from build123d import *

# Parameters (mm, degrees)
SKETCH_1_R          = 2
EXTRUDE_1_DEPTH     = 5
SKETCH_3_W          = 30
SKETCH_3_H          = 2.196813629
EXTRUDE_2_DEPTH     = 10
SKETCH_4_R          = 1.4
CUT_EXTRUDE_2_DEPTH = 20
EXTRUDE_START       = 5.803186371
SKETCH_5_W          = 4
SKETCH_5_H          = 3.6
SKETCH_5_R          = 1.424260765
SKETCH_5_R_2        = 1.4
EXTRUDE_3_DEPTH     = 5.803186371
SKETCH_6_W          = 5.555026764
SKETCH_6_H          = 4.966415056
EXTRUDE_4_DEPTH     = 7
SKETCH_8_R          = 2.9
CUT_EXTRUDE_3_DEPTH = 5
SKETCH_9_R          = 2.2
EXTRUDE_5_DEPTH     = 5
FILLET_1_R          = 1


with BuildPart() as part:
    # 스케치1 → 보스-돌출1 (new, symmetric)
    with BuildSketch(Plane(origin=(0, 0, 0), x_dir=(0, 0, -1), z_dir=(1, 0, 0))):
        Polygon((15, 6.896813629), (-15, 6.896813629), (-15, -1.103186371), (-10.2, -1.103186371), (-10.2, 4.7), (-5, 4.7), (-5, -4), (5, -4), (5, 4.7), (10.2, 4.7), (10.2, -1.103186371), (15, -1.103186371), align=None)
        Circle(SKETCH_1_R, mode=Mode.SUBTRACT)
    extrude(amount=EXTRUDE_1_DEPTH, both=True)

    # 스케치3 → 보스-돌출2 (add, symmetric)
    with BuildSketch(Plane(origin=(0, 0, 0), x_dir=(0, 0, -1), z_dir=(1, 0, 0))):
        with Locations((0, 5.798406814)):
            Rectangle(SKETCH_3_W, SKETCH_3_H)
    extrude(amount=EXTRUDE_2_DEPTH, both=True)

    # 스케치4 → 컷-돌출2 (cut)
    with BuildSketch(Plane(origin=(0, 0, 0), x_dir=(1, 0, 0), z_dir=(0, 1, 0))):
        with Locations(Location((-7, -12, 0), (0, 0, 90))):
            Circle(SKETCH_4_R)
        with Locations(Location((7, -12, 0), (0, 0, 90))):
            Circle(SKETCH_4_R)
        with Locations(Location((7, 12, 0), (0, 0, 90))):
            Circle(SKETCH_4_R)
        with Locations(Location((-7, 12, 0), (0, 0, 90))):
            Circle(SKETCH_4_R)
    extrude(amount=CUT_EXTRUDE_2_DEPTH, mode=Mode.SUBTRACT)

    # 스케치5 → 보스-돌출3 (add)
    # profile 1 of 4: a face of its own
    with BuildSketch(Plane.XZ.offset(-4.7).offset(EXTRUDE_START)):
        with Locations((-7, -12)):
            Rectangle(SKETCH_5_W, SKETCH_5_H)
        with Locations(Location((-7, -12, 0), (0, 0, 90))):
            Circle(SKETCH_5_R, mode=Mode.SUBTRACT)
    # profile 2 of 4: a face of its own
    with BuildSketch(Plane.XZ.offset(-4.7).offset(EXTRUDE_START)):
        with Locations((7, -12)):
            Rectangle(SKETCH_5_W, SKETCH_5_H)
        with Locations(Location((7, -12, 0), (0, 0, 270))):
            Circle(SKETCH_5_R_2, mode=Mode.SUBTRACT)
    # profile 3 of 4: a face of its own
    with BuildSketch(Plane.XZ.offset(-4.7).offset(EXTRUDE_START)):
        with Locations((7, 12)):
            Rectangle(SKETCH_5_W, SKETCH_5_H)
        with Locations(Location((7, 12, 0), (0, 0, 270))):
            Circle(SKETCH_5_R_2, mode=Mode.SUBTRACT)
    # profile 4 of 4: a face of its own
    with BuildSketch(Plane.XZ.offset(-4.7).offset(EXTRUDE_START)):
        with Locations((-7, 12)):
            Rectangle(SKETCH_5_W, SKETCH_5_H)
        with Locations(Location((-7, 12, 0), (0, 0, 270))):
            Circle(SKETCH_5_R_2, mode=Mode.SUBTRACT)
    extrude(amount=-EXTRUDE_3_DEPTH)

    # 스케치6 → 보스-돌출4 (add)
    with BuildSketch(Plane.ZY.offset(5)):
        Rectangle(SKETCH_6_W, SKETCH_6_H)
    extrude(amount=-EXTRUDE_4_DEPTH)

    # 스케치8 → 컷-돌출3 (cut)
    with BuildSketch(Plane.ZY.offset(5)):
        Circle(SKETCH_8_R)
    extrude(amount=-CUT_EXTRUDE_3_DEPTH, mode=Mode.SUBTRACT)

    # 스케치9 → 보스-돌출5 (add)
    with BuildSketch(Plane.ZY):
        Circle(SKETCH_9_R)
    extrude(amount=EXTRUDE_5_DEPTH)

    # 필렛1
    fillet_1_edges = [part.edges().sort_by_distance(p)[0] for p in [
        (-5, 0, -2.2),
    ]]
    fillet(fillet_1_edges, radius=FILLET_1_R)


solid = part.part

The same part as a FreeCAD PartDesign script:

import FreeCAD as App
import Part
import Sketcher


def edges_at(feature, points):
    """Names of the edges that pass closest to the given points."""
    edges = feature.Shape.Edges
    near = lambda p: min(range(len(edges)), key=lambda i: edges[i].distToShape(Part.Vertex(*p))[0])
    return sorted({f"Edge{near(p) + 1}" for p in points})


def add_polygon(sketch, points):
    """Adds a closed chain of lines whose ends are joined by coincident constraints."""
    first, n = sketch.GeometryCount, len(points)
    for a, b in zip(points, points[1:] + points[:1]):
        sketch.addGeometry(Part.LineSegment(App.Vector(*a, 0), App.Vector(*b, 0)), False)
    for i in range(n):
        sketch.addConstraint(Sketcher.Constraint("Coincident", first + i, 2, first + (i + 1) % n, 1))

doc = App.newDocument("Part")
body = doc.addObject("PartDesign::Body", "Body")

# Sketch on YZ plane
sketch1 = doc.addObject("Sketcher::SketchObject", "Sketch")
body.addObject(sketch1)
sketch1.AttachmentSupport = (doc.YZ_Plane, [""])
sketch1.MapMode = "FlatFace"
add_polygon(sketch1, [(6.9, -15), (6.9, 15), (-1.1, 15), (-1.1, 10.2), (4.7, 10.2), (4.7, 5), (-4, 5), (-4, -5), (4.7, -5), (4.7, -10.2), (-1.1, -10.2), (-1.1, -15)])  # lines 0-11
sketch1.addGeometry(Part.Circle(App.Vector(0, 0, 0), App.Vector(0, 0, 1), 2), False)  # 12
sketch1.addConstraint(Sketcher.Constraint("Vertical", 0))
sketch1.addConstraint(Sketcher.Constraint("Horizontal", 1))
sketch1.addConstraint(Sketcher.Constraint("Vertical", 2))
sketch1.addConstraint(Sketcher.Constraint("Horizontal", 3))
sketch1.addConstraint(Sketcher.Constraint("Vertical", 4))
sketch1.addConstraint(Sketcher.Constraint("Horizontal", 5))
sketch1.addConstraint(Sketcher.Constraint("Vertical", 6))
sketch1.addConstraint(Sketcher.Constraint("Horizontal", 7))
sketch1.addConstraint(Sketcher.Constraint("Vertical", 8))
sketch1.addConstraint(Sketcher.Constraint("Horizontal", 9))
sketch1.addConstraint(Sketcher.Constraint("Vertical", 10))
sketch1.addConstraint(Sketcher.Constraint("Horizontal", 11))
sketch1.addConstraint(Sketcher.Constraint("Coincident", 12, 3, -1, 1))
sketch1.addConstraint(Sketcher.Constraint("Symmetric", 4, 2, 7, 2, -1))
sketch1.addConstraint(Sketcher.Constraint("Symmetric", 2, 2, 9, 2, -1))
sketch1.addConstraint(Sketcher.Constraint("Equal", 2, 10))
sketch1.addConstraint(Sketcher.Constraint("Diameter", 12, 4.0))
sketch1.addConstraint(Sketcher.Constraint("DistanceX", 1, 2, 1, 1, 8.0))
sketch1.addConstraint(Sketcher.Constraint("DistanceY", 0, 1, 0, 2, 30.0))
sketch1.addConstraint(Sketcher.Constraint("DistanceY", 6, 2, 6, 1, 10.0))
sketch1.addConstraint(Sketcher.Constraint("DistanceX", 5, 2, 5, 1, 8.7))
sketch1.addConstraint(Sketcher.Constraint("DistanceY", 2, 2, 2, 1, 4.8))
sketch1.addConstraint(Sketcher.Constraint("DistanceX", 5, 2, -1, 1, 4.0))
sketch1.addConstraint(Sketcher.Constraint("DistanceX", 3, 1, 3, 2, 5.803186))
pad1 = doc.addObject("PartDesign::Pad", "Pad")
body.addObject(pad1)
pad1.Profile = sketch1
pad1.Length = 10
pad1.Midplane = True

# Sketch on YZ plane
sketch2 = doc.addObject("Sketcher::SketchObject", "Sketch001")
body.addObject(sketch2)
sketch2.AttachmentSupport = (doc.YZ_Plane, [""])
sketch2.MapMode = "FlatFace"
add_polygon(sketch2, [(6.9, 15), (4.7, 15), (4.7, -15), (6.9, -15)])  # lines 0-3
sketch2.addConstraint(Sketcher.Constraint("Horizontal", 0))
sketch2.addConstraint(Sketcher.Constraint("Vertical", 1))
sketch2.addConstraint(Sketcher.Constraint("Horizontal", 2))
sketch2.addConstraint(Sketcher.Constraint("Vertical", 3))
sketch2.addConstraint(Sketcher.Constraint("DistanceY", 1, 2, 1, 1, 30.0))
sketch2.addConstraint(Sketcher.Constraint("DistanceY", -1, 1, 0, 2, 15.0))
sketch2.addConstraint(Sketcher.Constraint("DistanceX", -1, 1, 0, 2, 4.7))
sketch2.addConstraint(Sketcher.Constraint("DistanceX", 0, 2, 0, 1, 2.196814))
pad2 = doc.addObject("PartDesign::Pad", "Pad001")
body.addObject(pad2)
pad2.Profile = sketch2
pad2.Length = 20
pad2.Midplane = True

# Sketch on XZ plane
sketch3 = doc.addObject("Sketcher::SketchObject", "Sketch002")
body.addObject(sketch3)
sketch3.AttachmentSupport = (doc.XZ_Plane, [""])
sketch3.MapMode = "FlatFace"
sketch3.addGeometry(Part.Circle(App.Vector(-7, 12, 0), App.Vector(0, 0, 1), 1.4), False)
sketch3.addGeometry(Part.Circle(App.Vector(7, 12, 0), App.Vector(0, 0, 1), 1.4), False)
sketch3.addGeometry(Part.Circle(App.Vector(7, -12, 0), App.Vector(0, 0, 1), 1.4), False)
sketch3.addGeometry(Part.Circle(App.Vector(-7, -12, 0), App.Vector(0, 0, 1), 1.4), False)
sketch3.addConstraint(Sketcher.Constraint("Equal", 0, 1))
sketch3.addConstraint(Sketcher.Constraint("Equal", 1, 2))
sketch3.addConstraint(Sketcher.Constraint("Equal", 2, 3))
sketch3.addConstraint(Sketcher.Constraint("Symmetric", 0, 3, 2, 3, -1, 1))
sketch3.addConstraint(Sketcher.Constraint("Symmetric", 1, 3, 3, 3, -1, 1))
sketch3.addConstraint(Sketcher.Constraint("Symmetric", 0, 3, 1, 3, -2))
sketch3.addConstraint(Sketcher.Constraint("Diameter", 0, 2.8))
sketch3.addConstraint(Sketcher.Constraint("DistanceX", 0, 3, -1, 1, 7.0))
sketch3.addConstraint(Sketcher.Constraint("DistanceY", -1, 1, 0, 3, 12.0))
pocket1 = doc.addObject("PartDesign::Pocket", "Pocket")
body.addObject(pocket1)
pocket1.Profile = sketch3
pocket1.Length = 20

# Sketch on XZ plane
sketch4 = doc.addObject("Sketcher::SketchObject", "Sketch003")
body.addObject(sketch4)
sketch4.AttachmentSupport = (doc.XZ_Plane, [""])
sketch4.MapMode = "FlatFace"
sketch4.AttachmentOffset = App.Placement(App.Vector(0, 0, 1.103186), App.Rotation())
add_polygon(sketch4, [(-9, -10.2), (-9, -13.8), (-5, -13.8), (-5, -10.2)])  # lines 0-3
sketch4.addGeometry(Part.Circle(App.Vector(-7, -12, 0), App.Vector(0, 0, 1), 1.4), False)  # 4
add_polygon(sketch4, [(5, -10.2), (5, -13.8), (9, -13.8), (9, -10.2)])  # lines 5-8
sketch4.addGeometry(Part.Circle(App.Vector(7, -12, 0), App.Vector(0, 0, 1), 1.4), False)  # 9
add_polygon(sketch4, [(5, 13.8), (5, 10.2), (9, 10.2), (9, 13.8)])  # lines 10-13
sketch4.addGeometry(Part.Circle(App.Vector(7, 12, 0), App.Vector(0, 0, 1), 1.4), False)  # 14
add_polygon(sketch4, [(-9, 13.8), (-9, 10.2), (-5, 10.2), (-5, 13.8)])  # lines 15-18
sketch4.addGeometry(Part.Circle(App.Vector(-7, 12, 0), App.Vector(0, 0, 1), 1.4), False)  # 19
sketch4.addConstraint(Sketcher.Constraint("Vertical", 0))
sketch4.addConstraint(Sketcher.Constraint("Horizontal", 1))
sketch4.addConstraint(Sketcher.Constraint("Vertical", 2))
sketch4.addConstraint(Sketcher.Constraint("Horizontal", 3))
sketch4.addConstraint(Sketcher.Constraint("Vertical", 5))
sketch4.addConstraint(Sketcher.Constraint("Horizontal", 6))
sketch4.addConstraint(Sketcher.Constraint("Vertical", 7))
sketch4.addConstraint(Sketcher.Constraint("Horizontal", 8))
sketch4.addConstraint(Sketcher.Constraint("Vertical", 10))
sketch4.addConstraint(Sketcher.Constraint("Horizontal", 11))
sketch4.addConstraint(Sketcher.Constraint("Vertical", 12))
sketch4.addConstraint(Sketcher.Constraint("Horizontal", 13))
sketch4.addConstraint(Sketcher.Constraint("Vertical", 15))
sketch4.addConstraint(Sketcher.Constraint("Horizontal", 16))
sketch4.addConstraint(Sketcher.Constraint("Vertical", 17))
sketch4.addConstraint(Sketcher.Constraint("Horizontal", 18))
sketch4.addConstraint(Sketcher.Constraint("Equal", 9, 14))
sketch4.addConstraint(Sketcher.Constraint("Equal", 14, 19))
sketch4.addConstraint(Sketcher.Constraint("Symmetric", 4, 3, 14, 3, -1, 1))
sketch4.addConstraint(Sketcher.Constraint("Symmetric", 9, 3, 19, 3, -1, 1))
sketch4.addConstraint(Sketcher.Constraint("Symmetric", 2, 2, 10, 2, -1, 1))
sketch4.addConstraint(Sketcher.Constraint("Symmetric", 0, 2, 12, 2, -1, 1))
sketch4.addConstraint(Sketcher.Constraint("Symmetric", 7, 2, 15, 2, -1, 1))
sketch4.addConstraint(Sketcher.Constraint("Symmetric", 5, 2, 17, 2, -1, 1))
sketch4.addConstraint(Sketcher.Constraint("Symmetric", 4, 3, 9, 3, -2))
sketch4.addConstraint(Sketcher.Constraint("Symmetric", 1, 2, 5, 2, -2))
sketch4.addConstraint(Sketcher.Constraint("Symmetric", 3, 2, 7, 2, -2))
sketch4.addConstraint(Sketcher.Constraint("Diameter", 9, 2.8))
sketch4.addConstraint(Sketcher.Constraint("DistanceX", 1, 1, 1, 2, 4.0))
sketch4.addConstraint(Sketcher.Constraint("DistanceY", 0, 2, 0, 1, 3.6))
sketch4.addConstraint(Sketcher.Constraint("DistanceX", 4, 3, -1, 1, 7.0))
sketch4.addConstraint(Sketcher.Constraint("DistanceY", 4, 3, -1, 1, 12.0))
sketch4.addConstraint(Sketcher.Constraint("DistanceX", 0, 2, -1, 1, 9.0))
sketch4.addConstraint(Sketcher.Constraint("DistanceY", 7, 2, 12, 2, 24.0))
sketch4.addConstraint(Sketcher.Constraint("Diameter", 4, 2.848522))
pad3 = doc.addObject("PartDesign::Pad", "Pad002")
body.addObject(pad3)
pad3.Profile = sketch4
pad3.Length = 5.803186
pad3.Reversed = True

# Sketch on YZ plane
sketch5 = doc.addObject("Sketcher::SketchObject", "Sketch004")
body.addObject(sketch5)
sketch5.AttachmentSupport = (doc.YZ_Plane, [""])
sketch5.MapMode = "FlatFace"
sketch5.AttachmentOffset = App.Placement(App.Vector(0, 0, -5), App.Rotation())
add_polygon(sketch5, [(2.5, -2.8), (-2.5, -2.8), (-2.5, 2.8), (2.5, 2.8)])  # lines 0-3
sketch5.addConstraint(Sketcher.Constraint("Horizontal", 0))
sketch5.addConstraint(Sketcher.Constraint("Vertical", 1))
sketch5.addConstraint(Sketcher.Constraint("Horizontal", 2))
sketch5.addConstraint(Sketcher.Constraint("Vertical", 3))
sketch5.addConstraint(Sketcher.Constraint("Symmetric", 0, 2, 2, 2, -1, 1))
sketch5.addConstraint(Sketcher.Constraint("DistanceX", 0, 2, 0, 1, 4.966415))
sketch5.addConstraint(Sketcher.Constraint("DistanceY", 1, 1, 1, 2, 5.555027))
pad4 = doc.addObject("PartDesign::Pad", "Pad003")
body.addObject(pad4)
pad4.Profile = sketch5
pad4.Length = 7

# Sketch on YZ plane
sketch6 = doc.addObject("Sketcher::SketchObject", "Sketch005")
body.addObject(sketch6)
sketch6.AttachmentSupport = (doc.YZ_Plane, [""])
sketch6.MapMode = "FlatFace"
sketch6.AttachmentOffset = App.Placement(App.Vector(0, 0, -5), App.Rotation())
sketch6.addGeometry(Part.Circle(App.Vector(0, 0, 0), App.Vector(0, 0, 1), 2.9), False)
sketch6.addConstraint(Sketcher.Constraint("Coincident", 0, 3, -1, 1))
sketch6.addConstraint(Sketcher.Constraint("Diameter", 0, 5.8))
pocket2 = doc.addObject("PartDesign::Pocket", "Pocket001")
body.addObject(pocket2)
pocket2.Profile = sketch6
pocket2.Length = 5
pocket2.Reversed = True

# Sketch on YZ plane
sketch7 = doc.addObject("Sketcher::SketchObject", "Sketch006")
body.addObject(sketch7)
sketch7.AttachmentSupport = (doc.YZ_Plane, [""])
sketch7.MapMode = "FlatFace"
sketch7.addGeometry(Part.Circle(App.Vector(0, 0, 0), App.Vector(0, 0, 1), 2.2), False)
sketch7.addConstraint(Sketcher.Constraint("Coincident", 0, 3, -1, 1))
sketch7.addConstraint(Sketcher.Constraint("Diameter", 0, 4.4))
pad5 = doc.addObject("PartDesign::Pad", "Pad004")
body.addObject(pad5)
pad5.Profile = sketch7
pad5.Length = 5
pad5.Reversed = True
doc.recompute()

fillet = doc.addObject("PartDesign::Fillet", "Fillet")
body.addObject(fillet)
fillet.Base = (pad5, edges_at(pad5, [(-5, 0, -2.2)]))
fillet.Radius = 1

doc.recompute()
